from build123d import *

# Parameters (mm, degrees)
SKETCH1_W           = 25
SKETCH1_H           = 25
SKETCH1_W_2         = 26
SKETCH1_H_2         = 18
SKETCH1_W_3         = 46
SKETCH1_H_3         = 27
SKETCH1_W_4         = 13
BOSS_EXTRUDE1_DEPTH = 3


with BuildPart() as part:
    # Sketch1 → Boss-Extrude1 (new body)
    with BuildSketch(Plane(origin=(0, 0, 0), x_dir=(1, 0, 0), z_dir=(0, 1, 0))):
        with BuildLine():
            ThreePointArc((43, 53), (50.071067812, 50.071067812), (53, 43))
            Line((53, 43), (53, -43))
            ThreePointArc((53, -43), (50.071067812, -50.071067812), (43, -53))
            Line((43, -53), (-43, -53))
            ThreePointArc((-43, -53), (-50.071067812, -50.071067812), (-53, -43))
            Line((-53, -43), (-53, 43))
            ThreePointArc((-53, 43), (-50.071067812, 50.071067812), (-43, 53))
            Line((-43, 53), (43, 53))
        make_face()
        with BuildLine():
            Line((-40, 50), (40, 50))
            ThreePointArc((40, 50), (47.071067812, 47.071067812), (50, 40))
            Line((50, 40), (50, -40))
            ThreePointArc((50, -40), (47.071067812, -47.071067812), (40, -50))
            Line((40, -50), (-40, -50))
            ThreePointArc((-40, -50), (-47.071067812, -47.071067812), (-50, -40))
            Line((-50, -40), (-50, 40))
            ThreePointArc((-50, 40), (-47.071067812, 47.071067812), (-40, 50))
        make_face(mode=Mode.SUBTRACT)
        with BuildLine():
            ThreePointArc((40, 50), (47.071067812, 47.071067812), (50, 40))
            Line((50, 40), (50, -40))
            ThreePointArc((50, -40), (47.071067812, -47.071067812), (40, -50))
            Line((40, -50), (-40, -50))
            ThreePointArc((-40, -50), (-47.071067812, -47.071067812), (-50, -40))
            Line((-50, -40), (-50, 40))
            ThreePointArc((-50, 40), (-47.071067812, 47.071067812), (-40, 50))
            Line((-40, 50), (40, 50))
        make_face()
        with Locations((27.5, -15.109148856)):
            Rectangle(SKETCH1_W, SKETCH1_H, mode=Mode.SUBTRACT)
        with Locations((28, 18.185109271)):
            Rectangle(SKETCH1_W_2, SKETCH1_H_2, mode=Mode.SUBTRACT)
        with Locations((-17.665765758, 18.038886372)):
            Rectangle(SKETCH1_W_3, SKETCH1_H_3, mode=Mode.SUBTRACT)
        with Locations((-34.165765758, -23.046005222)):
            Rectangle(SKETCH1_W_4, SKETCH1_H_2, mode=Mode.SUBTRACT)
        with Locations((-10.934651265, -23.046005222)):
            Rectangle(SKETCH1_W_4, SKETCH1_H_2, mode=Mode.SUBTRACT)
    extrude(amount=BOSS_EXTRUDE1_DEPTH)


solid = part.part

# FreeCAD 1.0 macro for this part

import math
import FreeCAD as App
import Part
import Sketcher
from FreeCAD import Vector


def add_polygon(sketch, points):
    """Adds a closed chain of lines whose ends are joined by coincident constraints."""
    first, n = sketch.GeometryCount, len(points)
    for a, b in zip(points, points[1:] + points[:1]):
        sketch.addGeometry(Part.LineSegment(App.Vector(*a, 0), App.Vector(*b, 0)), False)
    for i in range(n):
        sketch.addConstraint(Sketcher.Constraint("Coincident", first + i, 2, first + (i + 1) % n, 1))

doc = App.newDocument("Part")
params = doc.addObject("Spreadsheet::Sheet", "Params")
for row, (alias, value) in enumerate([
    ("sketch1_radius", "10 mm"),
    ("sketch1_width", "86 mm"),
    ("sketch1_width2", "25 mm"),
    ("sketch1_width3", "13 mm"),
    ("sketch1_width4", "26 mm"),
    ("pad1_length", "3 mm"),
], start=1):
    params.set(f"A{row}", alias)
    params.set(f"B{row}", "=" + value)
    params.setAlias(f"B{row}", alias)

body = doc.addObject("PartDesign::Body", "Body")

sketch1 = body.newObject("Sketcher::SketchObject", "Sketch")
sketch1.AttachmentSupport = (doc.getObject("XZ_Plane"), [""])
sketch1.MapMode = "FlatFace"
sketch1.addGeometry(Part.ArcOfCircle(Part.Circle(Vector(43, -43, 0), Vector(0, 0, 1), 10), math.radians(-90), math.radians(0)), False)
sketch1.addGeometry(Part.LineSegment(Vector(43, -53, 0), Vector(-43, -53, 0)), False)
sketch1.addGeometry(Part.ArcOfCircle(Part.Circle(Vector(-43, -43, 0), Vector(0, 0, 1), 10), math.radians(180), math.radians(270)), False)
sketch1.addGeometry(Part.LineSegment(Vector(-53, -43, 0), Vector(-53, 43, 0)), False)
sketch1.addGeometry(Part.ArcOfCircle(Part.Circle(Vector(-43, 43, 0), Vector(0, 0, 1), 10), math.radians(90), math.radians(180)), False)
sketch1.addGeometry(Part.LineSegment(Vector(-43, 53, 0), Vector(43, 53, 0)), False)
sketch1.addGeometry(Part.ArcOfCircle(Part.Circle(Vector(43, 43, 0), Vector(0, 0, 1), 10), math.radians(0), math.radians(90)), False)
sketch1.addGeometry(Part.LineSegment(Vector(53, 43, 0), Vector(53, -43, 0)), False)
add_polygon(sketch1, [(15, 28), (15, 3), (40, 3), (40, 28)])
add_polygon(sketch1, [(-17, 32), (-17, 14), (-4, 14), (-4, 32)])
add_polygon(sketch1, [(-41, 32), (-41, 14), (-28, 14), (-28, 32)])
add_polygon(sketch1, [(15, -9), (15, -27), (41, -27), (41, -9)])
add_polygon(sketch1, [(-41, -5), (-41, -32), (5, -32), (5, -5)])
sketch1.addConstraint([
    Sketcher.Constraint("Tangent", 0, 1, 1, 1),
    Sketcher.Constraint("Tangent", 1, 2, 2, 2),
    Sketcher.Constraint("Tangent", 2, 1, 3, 1),
    Sketcher.Constraint("Tangent", 3, 2, 4, 2),
    Sketcher.Constraint("Tangent", 4, 1, 5, 1),
    Sketcher.Constraint("Tangent", 5, 2, 6, 2),
    Sketcher.Constraint("Tangent", 6, 1, 7, 1),
    Sketcher.Constraint("Tangent", 7, 2, 0, 2),
    Sketcher.Constraint("Horizontal", 1),
    Sketcher.Constraint("Vertical", 3),
    Sketcher.Constraint("Horizontal", 5),
    Sketcher.Constraint("Vertical", 7),
    Sketcher.Constraint("Vertical", 8),
    Sketcher.Constraint("Horizontal", 9),
    Sketcher.Constraint("Vertical", 10),
    Sketcher.Constraint("Horizontal", 11),
    Sketcher.Constraint("Vertical", 12),
    Sketcher.Constraint("Horizontal", 13),
    Sketcher.Constraint("Vertical", 14),
    Sketcher.Constraint("Horizontal", 15),
    Sketcher.Constraint("Vertical", 16),
    Sketcher.Constraint("Horizontal", 17),
    Sketcher.Constraint("Vertical", 18),
    Sketcher.Constraint("Horizontal", 19),
    Sketcher.Constraint("Vertical", 20),
    Sketcher.Constraint("Horizontal", 21),
    Sketcher.Constraint("Vertical", 22),
    Sketcher.Constraint("Horizontal", 23),
    Sketcher.Constraint("Vertical", 24),
    Sketcher.Constraint("Horizontal", 25),
    Sketcher.Constraint("Vertical", 26),
    Sketcher.Constraint("Horizontal", 27),
    Sketcher.Constraint("Equal", 0, 2),
    Sketcher.Constraint("Equal", 2, 4),
    Sketcher.Constraint("Equal", 4, 6),
    Sketcher.Constraint("Symmetric", 0, 3, 4, 3, -1, 1),
    Sketcher.Constraint("Horizontal", 13, 2, 16, 2),
    Sketcher.Constraint("Horizontal", 15, 2, 18, 2),
    Sketcher.Constraint("Vertical", 11, 2, 20, 2),
    Sketcher.Constraint("Vertical", 19, 2, 24, 2),
    Sketcher.Constraint("Equal", 15, 17),
    Sketcher.Constraint("Equal", 5, 3),
    Sketcher.Constraint("Equal", 11, 8),
    Sketcher.Constraint("Equal", 18, 20),
    Sketcher.Constraint("Radius", 0, 10.0),
    Sketcher.Constraint("DistanceX", 1, 2, 1, 1, 86.0),
    Sketcher.Constraint("DistanceX", 9, 1, 9, 2, 25.0),
    Sketcher.Constraint("DistanceX", 13, 1, 13, 2, 13.0),
    Sketcher.Constraint("DistanceX", 21, 1, 21, 2, 26.0),
    Sketcher.Constraint("DistanceX", 25, 1, 25, 2, 46.0),
    Sketcher.Constraint("DistanceY", 12, 2, 12, 1, 18.0),
    Sketcher.Constraint("DistanceY", 24, 2, 24, 1, 27.0),
    Sketcher.Constraint("DistanceX", -1, 1, 8, 2, 15.0),
    Sketcher.Constraint("DistanceY", -1, 1, 8, 2, 2.609149),
    Sketcher.Constraint("DistanceX", 12, 2, -1, 1, 17.434651),
    Sketcher.Constraint("DistanceY", 20, 2, -1, 1, 27.185109),
    Sketcher.Constraint("DistanceY", 24, 2, 16, 2, 45.584892),
    Sketcher.Constraint("DistanceY", -1, 1, 12, 2, 14.046005),
    Sketcher.Constraint("DistanceX", 16, 2, -1, 1, 40.665766),
])
sketch1.setExpression("Constraints[64]", "Params.sketch1_radius")
sketch1.setExpression("Constraints[65]", "Params.sketch1_width")
sketch1.setExpression("Constraints[66]", "Params.sketch1_width2")
sketch1.setExpression("Constraints[67]", "Params.sketch1_width3")
sketch1.setExpression("Constraints[68]", "Params.sketch1_width4")
pad1 = body.newObject("PartDesign::Pad", "Pad")
pad1.Profile = sketch1
pad1.setExpression("Length", "Params.pad1_length")
pad1.Reversed = True

doc.recompute()
